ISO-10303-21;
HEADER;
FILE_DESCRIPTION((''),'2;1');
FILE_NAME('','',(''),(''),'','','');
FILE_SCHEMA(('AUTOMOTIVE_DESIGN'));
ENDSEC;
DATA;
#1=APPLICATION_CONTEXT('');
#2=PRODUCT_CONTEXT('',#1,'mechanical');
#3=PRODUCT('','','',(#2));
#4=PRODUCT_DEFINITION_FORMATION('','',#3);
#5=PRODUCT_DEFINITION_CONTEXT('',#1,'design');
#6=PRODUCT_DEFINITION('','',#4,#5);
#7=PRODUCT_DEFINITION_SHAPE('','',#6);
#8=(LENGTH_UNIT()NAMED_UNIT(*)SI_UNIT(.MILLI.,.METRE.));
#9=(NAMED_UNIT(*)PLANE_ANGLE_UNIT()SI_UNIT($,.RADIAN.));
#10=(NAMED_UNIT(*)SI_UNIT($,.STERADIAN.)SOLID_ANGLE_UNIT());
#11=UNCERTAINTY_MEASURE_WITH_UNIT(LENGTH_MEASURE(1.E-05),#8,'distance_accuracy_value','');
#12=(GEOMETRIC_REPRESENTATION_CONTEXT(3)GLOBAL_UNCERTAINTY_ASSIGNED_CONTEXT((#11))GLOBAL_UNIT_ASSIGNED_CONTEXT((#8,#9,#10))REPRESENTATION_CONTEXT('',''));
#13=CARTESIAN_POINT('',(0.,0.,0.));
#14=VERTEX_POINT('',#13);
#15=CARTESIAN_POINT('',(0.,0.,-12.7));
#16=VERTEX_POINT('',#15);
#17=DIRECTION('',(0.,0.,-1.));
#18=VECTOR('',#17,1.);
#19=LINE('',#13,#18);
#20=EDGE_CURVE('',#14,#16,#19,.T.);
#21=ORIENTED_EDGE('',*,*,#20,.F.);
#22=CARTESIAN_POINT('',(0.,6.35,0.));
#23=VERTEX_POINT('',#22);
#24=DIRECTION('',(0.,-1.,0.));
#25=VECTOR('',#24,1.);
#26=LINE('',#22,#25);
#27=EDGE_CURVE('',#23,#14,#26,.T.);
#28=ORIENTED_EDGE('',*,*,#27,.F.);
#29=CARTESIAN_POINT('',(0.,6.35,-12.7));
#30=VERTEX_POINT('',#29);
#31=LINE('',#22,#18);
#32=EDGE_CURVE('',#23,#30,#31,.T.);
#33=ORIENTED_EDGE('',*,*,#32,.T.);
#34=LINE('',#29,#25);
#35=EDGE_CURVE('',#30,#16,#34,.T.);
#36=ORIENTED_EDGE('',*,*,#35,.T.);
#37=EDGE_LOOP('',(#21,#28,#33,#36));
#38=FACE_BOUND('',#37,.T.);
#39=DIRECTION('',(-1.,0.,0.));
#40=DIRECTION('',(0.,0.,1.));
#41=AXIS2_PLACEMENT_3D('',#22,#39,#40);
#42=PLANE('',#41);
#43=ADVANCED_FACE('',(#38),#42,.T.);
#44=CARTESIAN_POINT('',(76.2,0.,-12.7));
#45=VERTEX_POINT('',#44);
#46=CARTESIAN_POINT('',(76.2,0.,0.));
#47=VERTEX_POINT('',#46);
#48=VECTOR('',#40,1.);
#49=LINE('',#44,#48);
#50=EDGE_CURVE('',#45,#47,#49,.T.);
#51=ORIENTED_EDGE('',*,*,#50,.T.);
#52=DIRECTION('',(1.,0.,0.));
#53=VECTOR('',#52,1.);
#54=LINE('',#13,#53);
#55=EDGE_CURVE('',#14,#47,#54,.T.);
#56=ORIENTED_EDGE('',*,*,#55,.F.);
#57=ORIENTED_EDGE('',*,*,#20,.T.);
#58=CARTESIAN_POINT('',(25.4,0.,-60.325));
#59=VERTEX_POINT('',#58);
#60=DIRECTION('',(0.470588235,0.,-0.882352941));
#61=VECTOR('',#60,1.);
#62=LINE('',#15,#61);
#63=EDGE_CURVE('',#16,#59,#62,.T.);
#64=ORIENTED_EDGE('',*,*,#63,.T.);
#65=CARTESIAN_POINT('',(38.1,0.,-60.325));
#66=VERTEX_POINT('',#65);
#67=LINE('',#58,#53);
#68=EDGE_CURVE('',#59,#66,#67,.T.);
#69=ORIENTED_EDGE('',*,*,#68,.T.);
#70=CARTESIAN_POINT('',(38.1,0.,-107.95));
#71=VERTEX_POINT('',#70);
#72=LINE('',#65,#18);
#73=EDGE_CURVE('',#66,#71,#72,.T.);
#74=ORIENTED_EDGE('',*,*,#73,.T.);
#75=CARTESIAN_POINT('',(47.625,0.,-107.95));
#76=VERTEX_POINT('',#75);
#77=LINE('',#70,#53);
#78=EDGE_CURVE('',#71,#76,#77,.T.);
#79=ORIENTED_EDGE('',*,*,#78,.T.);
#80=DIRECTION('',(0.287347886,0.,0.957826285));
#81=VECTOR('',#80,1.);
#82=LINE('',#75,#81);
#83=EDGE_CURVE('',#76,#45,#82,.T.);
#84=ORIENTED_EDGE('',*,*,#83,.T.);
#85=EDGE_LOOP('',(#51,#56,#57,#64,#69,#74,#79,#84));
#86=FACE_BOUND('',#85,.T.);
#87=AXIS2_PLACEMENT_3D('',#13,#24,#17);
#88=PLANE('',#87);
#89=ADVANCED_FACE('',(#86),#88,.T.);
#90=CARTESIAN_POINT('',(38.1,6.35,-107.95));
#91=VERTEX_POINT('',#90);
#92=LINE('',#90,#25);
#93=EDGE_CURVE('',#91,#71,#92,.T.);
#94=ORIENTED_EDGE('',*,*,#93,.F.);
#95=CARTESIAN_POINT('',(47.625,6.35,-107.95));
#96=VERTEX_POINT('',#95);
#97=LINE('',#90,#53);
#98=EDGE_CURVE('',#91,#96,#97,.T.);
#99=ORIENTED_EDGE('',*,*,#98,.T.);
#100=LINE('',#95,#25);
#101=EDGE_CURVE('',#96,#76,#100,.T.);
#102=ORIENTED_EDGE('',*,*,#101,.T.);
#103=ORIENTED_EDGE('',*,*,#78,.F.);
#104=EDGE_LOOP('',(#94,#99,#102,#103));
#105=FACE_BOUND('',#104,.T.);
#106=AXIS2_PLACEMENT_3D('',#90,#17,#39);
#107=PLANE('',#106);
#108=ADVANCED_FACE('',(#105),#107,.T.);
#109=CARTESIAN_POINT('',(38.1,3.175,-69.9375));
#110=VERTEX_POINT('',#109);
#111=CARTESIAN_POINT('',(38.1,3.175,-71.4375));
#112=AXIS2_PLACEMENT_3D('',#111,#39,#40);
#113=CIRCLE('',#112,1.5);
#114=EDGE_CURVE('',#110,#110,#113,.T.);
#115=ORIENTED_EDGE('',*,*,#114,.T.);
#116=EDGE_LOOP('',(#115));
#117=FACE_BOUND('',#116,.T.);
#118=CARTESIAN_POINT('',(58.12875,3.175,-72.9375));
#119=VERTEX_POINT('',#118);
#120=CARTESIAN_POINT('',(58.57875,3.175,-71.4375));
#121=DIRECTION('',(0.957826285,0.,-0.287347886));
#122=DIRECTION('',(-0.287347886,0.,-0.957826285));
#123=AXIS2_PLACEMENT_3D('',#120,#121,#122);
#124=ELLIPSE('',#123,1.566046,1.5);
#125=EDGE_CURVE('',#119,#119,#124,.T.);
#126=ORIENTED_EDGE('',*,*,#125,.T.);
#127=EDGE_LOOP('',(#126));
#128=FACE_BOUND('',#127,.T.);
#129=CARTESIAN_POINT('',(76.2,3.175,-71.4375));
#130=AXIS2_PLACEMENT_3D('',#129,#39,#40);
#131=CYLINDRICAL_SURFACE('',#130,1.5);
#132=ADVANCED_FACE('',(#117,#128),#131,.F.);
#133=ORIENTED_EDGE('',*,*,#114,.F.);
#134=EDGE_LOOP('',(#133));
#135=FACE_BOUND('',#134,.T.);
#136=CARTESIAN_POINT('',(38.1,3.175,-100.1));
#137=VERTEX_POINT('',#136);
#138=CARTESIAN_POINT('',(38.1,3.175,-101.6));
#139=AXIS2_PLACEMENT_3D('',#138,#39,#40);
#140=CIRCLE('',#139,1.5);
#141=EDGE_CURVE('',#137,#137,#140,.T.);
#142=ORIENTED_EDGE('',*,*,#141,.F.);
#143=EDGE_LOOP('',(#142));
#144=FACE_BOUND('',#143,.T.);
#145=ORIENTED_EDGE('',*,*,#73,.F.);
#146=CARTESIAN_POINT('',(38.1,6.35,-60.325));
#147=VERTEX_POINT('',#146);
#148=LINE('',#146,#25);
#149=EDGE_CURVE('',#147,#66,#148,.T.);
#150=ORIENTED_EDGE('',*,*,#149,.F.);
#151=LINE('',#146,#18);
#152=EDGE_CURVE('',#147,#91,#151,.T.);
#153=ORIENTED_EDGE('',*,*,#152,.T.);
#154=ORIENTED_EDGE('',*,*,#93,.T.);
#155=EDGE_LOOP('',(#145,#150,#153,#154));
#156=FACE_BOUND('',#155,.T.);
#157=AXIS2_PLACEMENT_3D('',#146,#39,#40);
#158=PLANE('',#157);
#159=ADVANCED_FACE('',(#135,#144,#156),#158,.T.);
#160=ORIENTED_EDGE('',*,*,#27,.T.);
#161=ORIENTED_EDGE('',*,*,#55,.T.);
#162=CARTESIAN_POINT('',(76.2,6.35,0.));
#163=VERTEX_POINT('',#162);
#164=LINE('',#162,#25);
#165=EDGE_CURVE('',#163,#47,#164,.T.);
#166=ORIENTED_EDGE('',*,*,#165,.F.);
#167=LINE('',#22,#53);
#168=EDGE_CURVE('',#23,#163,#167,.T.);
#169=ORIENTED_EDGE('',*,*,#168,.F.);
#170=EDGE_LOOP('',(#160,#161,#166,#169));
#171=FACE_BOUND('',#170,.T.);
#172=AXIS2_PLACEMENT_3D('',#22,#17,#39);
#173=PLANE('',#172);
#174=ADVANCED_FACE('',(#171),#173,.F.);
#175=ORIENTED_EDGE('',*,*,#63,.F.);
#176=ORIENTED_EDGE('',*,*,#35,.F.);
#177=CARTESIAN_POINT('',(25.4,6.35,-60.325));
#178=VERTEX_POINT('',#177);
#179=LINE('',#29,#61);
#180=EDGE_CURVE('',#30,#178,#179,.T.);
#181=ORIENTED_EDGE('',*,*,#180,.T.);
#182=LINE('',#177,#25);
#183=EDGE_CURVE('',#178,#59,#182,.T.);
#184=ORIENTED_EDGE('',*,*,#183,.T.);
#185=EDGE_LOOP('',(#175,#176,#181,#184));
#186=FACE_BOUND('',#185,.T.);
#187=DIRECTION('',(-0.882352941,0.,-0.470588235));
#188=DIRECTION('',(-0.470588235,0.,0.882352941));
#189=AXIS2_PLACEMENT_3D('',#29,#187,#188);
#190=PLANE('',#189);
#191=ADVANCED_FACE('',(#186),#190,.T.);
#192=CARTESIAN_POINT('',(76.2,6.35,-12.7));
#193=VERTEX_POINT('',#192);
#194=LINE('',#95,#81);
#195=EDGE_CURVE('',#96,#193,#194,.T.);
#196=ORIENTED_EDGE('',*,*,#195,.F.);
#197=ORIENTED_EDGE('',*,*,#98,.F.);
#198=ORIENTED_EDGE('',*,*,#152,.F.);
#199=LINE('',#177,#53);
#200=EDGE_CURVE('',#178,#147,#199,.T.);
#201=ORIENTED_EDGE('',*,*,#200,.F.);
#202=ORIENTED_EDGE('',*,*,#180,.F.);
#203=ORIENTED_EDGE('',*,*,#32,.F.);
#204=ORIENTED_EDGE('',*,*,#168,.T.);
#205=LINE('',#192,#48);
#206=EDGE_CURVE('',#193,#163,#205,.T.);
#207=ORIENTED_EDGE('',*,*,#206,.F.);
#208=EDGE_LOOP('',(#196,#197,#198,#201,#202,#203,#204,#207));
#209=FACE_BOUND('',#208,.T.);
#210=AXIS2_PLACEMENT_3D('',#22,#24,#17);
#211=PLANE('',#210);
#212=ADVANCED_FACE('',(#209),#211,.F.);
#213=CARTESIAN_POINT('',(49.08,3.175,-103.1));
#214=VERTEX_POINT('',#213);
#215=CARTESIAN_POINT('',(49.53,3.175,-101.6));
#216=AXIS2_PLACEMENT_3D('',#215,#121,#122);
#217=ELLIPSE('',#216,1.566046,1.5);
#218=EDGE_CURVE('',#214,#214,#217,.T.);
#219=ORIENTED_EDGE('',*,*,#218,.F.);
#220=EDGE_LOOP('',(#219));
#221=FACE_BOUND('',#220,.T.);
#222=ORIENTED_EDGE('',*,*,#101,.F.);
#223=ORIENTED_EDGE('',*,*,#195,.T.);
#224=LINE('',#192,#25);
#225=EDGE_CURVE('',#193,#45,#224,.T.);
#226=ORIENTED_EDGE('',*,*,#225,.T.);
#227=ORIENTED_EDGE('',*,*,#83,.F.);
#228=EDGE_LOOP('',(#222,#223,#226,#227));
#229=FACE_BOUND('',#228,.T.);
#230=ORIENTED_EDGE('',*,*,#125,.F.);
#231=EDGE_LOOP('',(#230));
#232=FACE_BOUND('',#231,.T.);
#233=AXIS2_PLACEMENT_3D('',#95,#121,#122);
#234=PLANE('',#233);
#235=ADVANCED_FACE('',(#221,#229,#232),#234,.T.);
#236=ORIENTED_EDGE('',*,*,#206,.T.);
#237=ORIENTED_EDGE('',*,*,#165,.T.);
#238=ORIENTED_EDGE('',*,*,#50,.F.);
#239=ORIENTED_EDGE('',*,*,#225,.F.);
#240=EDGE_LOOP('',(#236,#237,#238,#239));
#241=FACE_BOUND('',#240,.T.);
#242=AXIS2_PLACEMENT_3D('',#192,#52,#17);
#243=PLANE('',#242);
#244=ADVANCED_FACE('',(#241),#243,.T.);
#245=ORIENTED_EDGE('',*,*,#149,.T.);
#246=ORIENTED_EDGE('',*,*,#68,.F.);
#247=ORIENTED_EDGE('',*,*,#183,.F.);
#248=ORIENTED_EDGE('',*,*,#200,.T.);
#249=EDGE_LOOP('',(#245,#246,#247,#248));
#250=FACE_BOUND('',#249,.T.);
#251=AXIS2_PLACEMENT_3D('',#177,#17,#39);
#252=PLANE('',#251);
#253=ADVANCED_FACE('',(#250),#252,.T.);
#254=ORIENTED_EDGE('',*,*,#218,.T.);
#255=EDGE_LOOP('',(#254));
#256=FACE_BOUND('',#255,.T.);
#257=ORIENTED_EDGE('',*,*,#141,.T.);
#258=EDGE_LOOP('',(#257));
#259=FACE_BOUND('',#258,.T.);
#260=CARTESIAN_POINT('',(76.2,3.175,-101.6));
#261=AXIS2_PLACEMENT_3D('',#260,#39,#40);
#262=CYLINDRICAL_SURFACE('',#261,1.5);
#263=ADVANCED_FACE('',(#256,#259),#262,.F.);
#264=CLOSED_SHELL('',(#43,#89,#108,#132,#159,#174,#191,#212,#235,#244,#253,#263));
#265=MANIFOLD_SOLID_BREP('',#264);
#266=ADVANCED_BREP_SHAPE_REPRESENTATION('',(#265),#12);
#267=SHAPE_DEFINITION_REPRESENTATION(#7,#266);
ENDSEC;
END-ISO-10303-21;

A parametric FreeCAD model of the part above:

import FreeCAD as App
import Part
import Sketcher
from FreeCAD import Vector
Q = App.Units.Quantity


def add_polygon(sketch, points):
    """Adds a closed chain of lines whose ends are joined by coincident constraints."""
    first, n = sketch.GeometryCount, len(points)
    for a, b in zip(points, points[1:] + points[:1]):
        sketch.addGeometry(Part.LineSegment(App.Vector(*a, 0), App.Vector(*b, 0)), False)
    for i in range(n):
        sketch.addConstraint(Sketcher.Constraint("Coincident", first + i, 2, first + (i + 1) % n, 1))

doc = App.newDocument("Part")
body = doc.addObject("PartDesign::Body", "Body")

sketch1 = doc.addObject("Sketcher::SketchObject", "Sketch")
body.addObject(sketch1)
sketch1.AttachmentSupport = (doc.XZ_Plane, [""])
sketch1.MapMode = "FlatFace"
add_polygon(sketch1, [(0, -13), (0, 0), (76, 0), (76, -13), (48, -108), (38, -108), (38, -60), (25, -60)])
sketch1.addConstraint([
    Sketcher.Constraint("Vertical", 0),
    Sketcher.Constraint("Horizontal", 1),
    Sketcher.Constraint("Vertical", 2),
    Sketcher.Constraint("Horizontal", 4),
    Sketcher.Constraint("Vertical", 5),
    Sketcher.Constraint("Horizontal", 6),
    Sketcher.Constraint("Coincident", 0, 2, -1, 1),
    Sketcher.Constraint("Horizontal", 2, 2, 7, 2),
    Sketcher.Constraint("Equal", 6, 0),
    Sketcher.Constraint("DistanceX", 1, 1, 1, 2, Q("3 in")),
    Sketcher.Constraint("DistanceX", 6, 2, 6, 1, Q("0.5 in")),
    Sketcher.Constraint("DistanceX", -1, 1, 6, 2, Q("1 in")),
    Sketcher.Constraint("DistanceX", 4, 2, 4, 1, Q("0.375 in")),
    Sketcher.Constraint("DistanceY", 5, 1, 5, 2, Q("1.875 in")),
    Sketcher.Constraint("DistanceY", 3, 2, -1, 1, Q("4.25 in")),
])
pad1 = doc.addObject("PartDesign::Pad", "Pad")
body.addObject(pad1)
pad1.Profile = sketch1
pad1.Length = Q("0.25 in")
pad1.Reversed = True

sketch2 = doc.addObject("Sketcher::SketchObject", "Sketch001")
body.addObject(sketch2)
sketch2.AttachmentSupport = (doc.YZ_Plane, [""])
sketch2.MapMode = "FlatFace"
sketch2.AttachmentOffset = App.Placement(Vector(0, 0, 1.5 * 25.4), App.Rotation())
sketch2.addGeometry([
    Part.Circle(Vector(3.2, -101.6, 0), Vector(0, 0, 1), 1.5),
    Part.Circle(Vector(3.2, -71.4, 0), Vector(0, 0, 1), 1.5),
], False)
sketch2.addConstraint([
    Sketcher.Constraint("Equal", 0, 1),
    Sketcher.Constraint("Vertical", 0, 3, 1, 3),
    Sketcher.Constraint("DistanceY", 0, 3, -1, 1, Q("4 in")),
    Sketcher.Constraint("Diameter", 0, 3.0),
    Sketcher.Constraint("DistanceX", -1, 1, 0, 3, Q("0.125 in")),
    Sketcher.Constraint("DistanceY", 1, 3, -1, 1, Q("2.8125 in")),
])
pocket1 = doc.addObject("PartDesign::Pocket", "Pocket")
body.addObject(pocket1)
pocket1.Profile = sketch2
pocket1.Type = "ThroughAll"
pocket1.Midplane = True

doc.recompute()
